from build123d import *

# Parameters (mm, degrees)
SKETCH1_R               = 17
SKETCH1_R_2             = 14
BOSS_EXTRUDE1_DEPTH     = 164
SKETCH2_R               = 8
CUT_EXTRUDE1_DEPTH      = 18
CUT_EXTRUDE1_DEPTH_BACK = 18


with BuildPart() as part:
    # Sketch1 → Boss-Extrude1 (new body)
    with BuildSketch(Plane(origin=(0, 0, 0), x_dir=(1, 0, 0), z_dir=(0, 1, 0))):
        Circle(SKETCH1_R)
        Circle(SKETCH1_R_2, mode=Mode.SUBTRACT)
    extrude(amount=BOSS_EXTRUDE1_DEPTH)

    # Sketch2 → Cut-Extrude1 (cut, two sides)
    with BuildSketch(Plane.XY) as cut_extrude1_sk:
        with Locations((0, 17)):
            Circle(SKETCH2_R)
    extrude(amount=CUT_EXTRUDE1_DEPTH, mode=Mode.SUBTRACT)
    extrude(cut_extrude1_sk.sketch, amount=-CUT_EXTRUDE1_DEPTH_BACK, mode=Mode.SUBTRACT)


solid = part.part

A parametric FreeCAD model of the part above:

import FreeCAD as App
import Part
import Sketcher
from FreeCAD import Vector
Q = App.Units.Quantity

doc = App.newDocument("Part")
params = doc.addObject("Spreadsheet::Sheet", "Params")
for row, (alias, value) in enumerate([
    ("sketch1_diameter", "34 mm"),
    ("sketch1_diameter2", "28 mm"),
    ("pad1_length", "164 mm"),
    ("sketch2_diameter", "16 mm"),
], start=1):
    params.set(f"A{row}", alias)
    params.set(f"B{row}", "=" + value)
    params.setAlias(f"B{row}", alias)

body = doc.addObject("PartDesign::Body", "Body")

sketch1 = body.newObject("Sketcher::SketchObject", "Sketch")
sketch1.AttachmentSupport = (doc.getObject("XZ_Plane"), [""])
sketch1.MapMode = "FlatFace"
sketch1.addGeometry([
    Part.Circle(Vector(0, 0, 0), Vector(0, 0, 1), 17),
    Part.Circle(Vector(0, 0, 0), Vector(0, 0, 1), 14),
], False)
sketch1.addConstraint([
    Sketcher.Constraint("Coincident", 0, 3, -1, 1),
    Sketcher.Constraint("Coincident", 1, 3, -1, 1),
    Sketcher.Constraint("Diameter", 0, Q("34 mm")),
    Sketcher.Constraint("Diameter", 1, Q("28 mm")),
])
sketch1.setExpression("Constraints[2]", "Params.sketch1_diameter")
sketch1.setExpression("Constraints[3]", "Params.sketch1_diameter2")
pad1 = body.newObject("PartDesign::Pad", "Pad")
pad1.Profile = sketch1
pad1.setExpression("Length", "Params.pad1_length")
pad1.Reversed = True

sketch2 = body.newObject("Sketcher::SketchObject", "Sketch001")
sketch2.AttachmentSupport = (doc.getObject("XY_Plane"), [""])
sketch2.MapMode = "FlatFace"
sketch2.addGeometry(Part.Circle(Vector(0, 17, 0), Vector(0, 0, 1), 8), False)
sketch2.addConstraint([
    Sketcher.Constraint("PointOnObject", 0, 3, -2),
    Sketcher.Constraint("Diameter", 0, Q("16 mm")),
    Sketcher.Constraint("DistanceY", -1, 1, 0, 3, Q("17 mm")),
])
sketch2.setExpression("Constraints[1]", "Params.sketch2_diameter")
pocket1 = body.newObject("PartDesign::Pocket", "Pocket")
pocket1.Profile = sketch2
pocket1.Type = "ThroughAll"
pocket1.Midplane = True

doc.recompute()
